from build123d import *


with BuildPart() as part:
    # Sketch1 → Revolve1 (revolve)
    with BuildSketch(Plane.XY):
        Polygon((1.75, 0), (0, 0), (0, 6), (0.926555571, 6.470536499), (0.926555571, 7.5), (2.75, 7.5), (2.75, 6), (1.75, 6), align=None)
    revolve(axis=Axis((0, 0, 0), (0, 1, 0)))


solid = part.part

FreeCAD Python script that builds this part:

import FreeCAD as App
import Part
import Sketcher
from FreeCAD import Vector


def add_polygon(sketch, points):
    """Adds a closed chain of lines whose ends are joined by coincident constraints."""
    first, n = sketch.GeometryCount, len(points)
    for a, b in zip(points, points[1:] + points[:1]):
        sketch.addGeometry(Part.LineSegment(App.Vector(*a, 0), App.Vector(*b, 0)), False)
    for i in range(n):
        sketch.addConstraint(Sketcher.Constraint("Coincident", first + i, 2, first + (i + 1) % n, 1))

doc = App.newDocument("Part")
body = doc.addObject("PartDesign::Body", "Body")

# Sketch on XY plane
sketch1 = body.newObject("Sketcher::SketchObject", "Sketch")
sketch1.AttachmentSupport = (doc.getObject("XY_Plane"), [""])
sketch1.MapMode = "FlatFace"
add_polygon(sketch1, [(0, 0), (1.75, 0), (1.75, 6), (2.75, 6), (2.75, 7.5), (0.926556, 7.5), (0.926556, 6.470536), (0, 6)])  # lines 0-7
sketch1.addConstraint([
    Sketcher.Constraint("Horizontal", 0),
    Sketcher.Constraint("Vertical", 1),
    Sketcher.Constraint("Horizontal", 2),
    Sketcher.Constraint("Vertical", 3),
    Sketcher.Constraint("Horizontal", 4),
    Sketcher.Constraint("Vertical", 5),
    Sketcher.Constraint("Vertical", 7),
    Sketcher.Constraint("Coincident", 7, 2, -1, 1),
    Sketcher.Constraint("Horizontal", 2, 2, 6, 2),
    Sketcher.Constraint("DistanceX", 2, 1, 2, 2, 1.0),
    Sketcher.Constraint("DistanceY", 1, 1, 1, 2, 6.0),
    Sketcher.Constraint("DistanceY", 3, 1, 3, 2, 1.5),
    Sketcher.Constraint("DistanceX", 0, 1, 0, 2, 1.75),
    Sketcher.Constraint("DistanceX", 4, 2, 4, 1, 1.823444),
    Sketcher.Constraint("DistanceY", 5, 2, 5, 1, 1.029464),
])
revolution = body.newObject("PartDesign::Revolution", "Revolution")
revolution.Profile = sketch1
revolution.ReferenceAxis = (sketch1, ["V_Axis"])
revolution.Angle = 360

doc.recompute()
